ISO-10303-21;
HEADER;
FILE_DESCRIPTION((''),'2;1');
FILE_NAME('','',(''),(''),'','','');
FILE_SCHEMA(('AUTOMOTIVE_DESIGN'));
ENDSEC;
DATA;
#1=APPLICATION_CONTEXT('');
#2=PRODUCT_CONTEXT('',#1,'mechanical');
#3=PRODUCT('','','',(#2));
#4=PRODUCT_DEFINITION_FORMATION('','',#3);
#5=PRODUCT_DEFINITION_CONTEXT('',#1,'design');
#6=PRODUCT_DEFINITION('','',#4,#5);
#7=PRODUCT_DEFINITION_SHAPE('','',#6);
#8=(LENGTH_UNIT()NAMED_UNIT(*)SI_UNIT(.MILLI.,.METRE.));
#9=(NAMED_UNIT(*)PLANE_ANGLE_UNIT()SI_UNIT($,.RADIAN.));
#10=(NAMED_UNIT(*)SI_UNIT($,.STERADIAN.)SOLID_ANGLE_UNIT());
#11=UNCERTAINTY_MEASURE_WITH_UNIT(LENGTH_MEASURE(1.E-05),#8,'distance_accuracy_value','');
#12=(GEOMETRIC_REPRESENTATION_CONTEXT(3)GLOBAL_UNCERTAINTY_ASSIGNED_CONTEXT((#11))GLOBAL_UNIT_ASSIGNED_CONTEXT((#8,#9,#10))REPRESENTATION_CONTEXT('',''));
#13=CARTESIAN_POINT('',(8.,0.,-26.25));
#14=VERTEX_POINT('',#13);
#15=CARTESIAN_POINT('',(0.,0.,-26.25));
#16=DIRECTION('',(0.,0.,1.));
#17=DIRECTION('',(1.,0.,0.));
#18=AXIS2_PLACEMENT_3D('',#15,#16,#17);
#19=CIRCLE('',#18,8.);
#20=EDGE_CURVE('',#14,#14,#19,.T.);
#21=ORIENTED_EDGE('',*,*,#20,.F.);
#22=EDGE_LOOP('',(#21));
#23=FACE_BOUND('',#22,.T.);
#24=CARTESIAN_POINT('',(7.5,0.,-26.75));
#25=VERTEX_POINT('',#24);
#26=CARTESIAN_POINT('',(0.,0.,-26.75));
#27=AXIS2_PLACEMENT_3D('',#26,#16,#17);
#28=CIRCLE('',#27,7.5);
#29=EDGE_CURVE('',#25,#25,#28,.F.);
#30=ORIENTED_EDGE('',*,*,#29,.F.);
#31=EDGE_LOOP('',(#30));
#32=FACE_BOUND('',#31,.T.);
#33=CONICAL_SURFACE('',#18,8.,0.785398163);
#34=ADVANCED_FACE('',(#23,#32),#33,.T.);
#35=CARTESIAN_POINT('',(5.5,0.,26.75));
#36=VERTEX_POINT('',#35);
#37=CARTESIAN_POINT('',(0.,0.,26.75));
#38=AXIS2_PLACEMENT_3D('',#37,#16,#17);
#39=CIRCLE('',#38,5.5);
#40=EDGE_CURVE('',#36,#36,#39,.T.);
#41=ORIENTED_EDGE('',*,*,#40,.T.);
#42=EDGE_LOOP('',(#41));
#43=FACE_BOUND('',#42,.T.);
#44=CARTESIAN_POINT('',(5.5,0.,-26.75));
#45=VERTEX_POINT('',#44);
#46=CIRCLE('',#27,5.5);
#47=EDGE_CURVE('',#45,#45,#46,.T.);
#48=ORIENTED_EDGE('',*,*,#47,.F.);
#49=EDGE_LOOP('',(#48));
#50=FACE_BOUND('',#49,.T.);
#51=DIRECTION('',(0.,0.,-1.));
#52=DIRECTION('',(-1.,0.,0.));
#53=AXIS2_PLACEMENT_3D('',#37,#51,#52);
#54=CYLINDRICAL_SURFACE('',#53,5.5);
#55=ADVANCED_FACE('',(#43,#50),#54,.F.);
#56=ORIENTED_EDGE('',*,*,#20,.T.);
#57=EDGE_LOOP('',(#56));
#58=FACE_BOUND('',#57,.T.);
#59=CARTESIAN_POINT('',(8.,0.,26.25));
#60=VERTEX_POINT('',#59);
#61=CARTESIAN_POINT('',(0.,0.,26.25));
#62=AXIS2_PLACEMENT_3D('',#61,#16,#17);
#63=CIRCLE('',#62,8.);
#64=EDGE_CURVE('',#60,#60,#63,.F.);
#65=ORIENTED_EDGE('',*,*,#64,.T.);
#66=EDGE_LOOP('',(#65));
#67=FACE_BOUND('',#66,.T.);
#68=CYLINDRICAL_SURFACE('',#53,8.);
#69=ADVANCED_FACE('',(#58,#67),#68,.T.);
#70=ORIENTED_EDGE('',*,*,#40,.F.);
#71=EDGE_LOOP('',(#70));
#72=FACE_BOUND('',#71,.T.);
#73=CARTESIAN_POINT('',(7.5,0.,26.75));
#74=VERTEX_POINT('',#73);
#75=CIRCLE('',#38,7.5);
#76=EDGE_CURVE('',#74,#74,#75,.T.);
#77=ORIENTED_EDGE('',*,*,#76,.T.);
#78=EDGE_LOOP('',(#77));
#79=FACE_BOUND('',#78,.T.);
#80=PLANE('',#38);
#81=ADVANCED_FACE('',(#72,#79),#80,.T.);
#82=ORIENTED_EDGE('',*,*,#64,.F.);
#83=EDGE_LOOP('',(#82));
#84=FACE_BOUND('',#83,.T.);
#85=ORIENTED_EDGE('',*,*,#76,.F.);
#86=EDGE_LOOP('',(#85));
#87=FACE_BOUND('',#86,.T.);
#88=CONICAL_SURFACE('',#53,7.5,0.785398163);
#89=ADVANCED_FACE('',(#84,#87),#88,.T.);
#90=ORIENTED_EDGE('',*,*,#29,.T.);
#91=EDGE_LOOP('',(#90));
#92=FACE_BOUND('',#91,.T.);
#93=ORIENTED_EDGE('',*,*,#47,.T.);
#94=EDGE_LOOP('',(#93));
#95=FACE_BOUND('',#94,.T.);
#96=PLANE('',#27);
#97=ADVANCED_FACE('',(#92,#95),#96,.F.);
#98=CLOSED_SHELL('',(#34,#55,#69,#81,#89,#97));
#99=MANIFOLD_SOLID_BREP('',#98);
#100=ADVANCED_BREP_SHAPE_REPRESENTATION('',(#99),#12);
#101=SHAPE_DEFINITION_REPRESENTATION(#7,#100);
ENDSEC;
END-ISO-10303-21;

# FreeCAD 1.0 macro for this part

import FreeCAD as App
import Part
import Sketcher
Q = App.Units.Quantity


def edges_at(feature, points):
    """Names of the edges that pass closest to the given points."""
    edges = feature.Shape.Edges
    near = lambda p: min(range(len(edges)), key=lambda i: edges[i].distToShape(Part.Vertex(*p))[0])
    return sorted({f"Edge{near(p) + 1}" for p in points})

doc = App.newDocument("Part")
body = doc.addObject("PartDesign::Body", "Body")

# Sketch on XY plane
sketch1 = body.newObject("Sketcher::SketchObject", "Sketch")
sketch1.AttachmentSupport = (doc.getObject("XY_Plane"), [""])
sketch1.MapMode = "FlatFace"
sketch1.addGeometry(Part.Circle(App.Vector(0, 0, 0), App.Vector(0, 0, 1), 8), False)
sketch1.addGeometry(Part.Circle(App.Vector(0, 0, 0), App.Vector(0, 0, 1), 6), False)
sketch1.addConstraint(Sketcher.Constraint("Coincident", 0, 3, -1, 1))
sketch1.addConstraint(Sketcher.Constraint("Coincident", 1, 3, -1, 1))
sketch1.addConstraint(Sketcher.Constraint("Diameter", 0, Q("16 mm")))
sketch1.addConstraint(Sketcher.Constraint("Diameter", 1, Q("11 mm")))
pad1 = body.newObject("PartDesign::Pad", "Pad")
pad1.Profile = sketch1
pad1.Length = 53.5
pad1.Midplane = True
doc.recompute()

chamfer = body.newObject("PartDesign::Chamfer", "Chamfer")
chamfer.Base = (pad1, edges_at(pad1, [(-8, 0, -26.75), (-8, 0, 26.75)]))
chamfer.Size = 0.5

doc.recompute()
